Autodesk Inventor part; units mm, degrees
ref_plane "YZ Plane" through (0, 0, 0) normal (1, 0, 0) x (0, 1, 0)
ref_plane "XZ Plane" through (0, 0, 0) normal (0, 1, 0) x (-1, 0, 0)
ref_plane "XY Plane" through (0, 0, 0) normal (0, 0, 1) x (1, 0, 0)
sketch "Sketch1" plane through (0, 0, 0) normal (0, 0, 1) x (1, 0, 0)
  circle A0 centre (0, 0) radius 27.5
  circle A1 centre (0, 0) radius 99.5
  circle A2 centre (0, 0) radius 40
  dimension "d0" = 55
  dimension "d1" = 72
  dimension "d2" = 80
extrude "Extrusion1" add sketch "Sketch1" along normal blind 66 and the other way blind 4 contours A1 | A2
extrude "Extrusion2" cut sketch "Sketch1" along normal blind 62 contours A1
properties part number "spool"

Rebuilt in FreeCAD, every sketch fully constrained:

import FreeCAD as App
import Part
import Sketcher
from FreeCAD import Vector

doc = App.newDocument("Part")
body = doc.addObject("PartDesign::Body", "Body")

sketch1 = body.newObject("Sketcher::SketchObject", "Sketch")
sketch1.AttachmentSupport = (doc.getObject("XY_Plane"), [""])
sketch1.MapMode = "FlatFace"
sketch1.addGeometry([
    Part.Circle(Vector(0, 0, 0), Vector(0, 0, 1), 100),
    Part.Circle(Vector(0, 0, 0), Vector(0, 0, 1), 28),
], False)
sketch1.addConstraint([
    Sketcher.Constraint("Coincident", 0, 3, -1, 1),
    Sketcher.Constraint("Coincident", 1, 3, -1, 1),
    Sketcher.Constraint("Diameter", 1, 55.0),
    Sketcher.Constraint("Diameter", 0, 199.0),
])
pad1 = body.newObject("PartDesign::Pad", "Pad")
pad1.Profile = sketch1
pad1.Type = "TwoLengths"
pad1.Length = 66
pad1.Length2 = 4

sketch2 = body.newObject("Sketcher::SketchObject", "Sketch001")
sketch2.AttachmentSupport = (doc.getObject("XY_Plane"), [""])
sketch2.MapMode = "FlatFace"
sketch2.addGeometry([
    Part.Circle(Vector(0, 0, 0), Vector(0, 0, 1), 100),
    Part.Circle(Vector(0, 0, 0), Vector(0, 0, 1), 40),
], False)
sketch2.addConstraint([
    Sketcher.Constraint("Coincident", 0, 3, -1, 1),
    Sketcher.Constraint("Coincident", 1, 3, -1, 1),
    Sketcher.Constraint("Diameter", 1, 80.0),
    Sketcher.Constraint("Diameter", 0, 199.0),
])
pocket1 = body.newObject("PartDesign::Pocket", "Pocket")
pocket1.Profile = sketch2
pocket1.Length = 62
pocket1.Reversed = True

doc.recompute()
